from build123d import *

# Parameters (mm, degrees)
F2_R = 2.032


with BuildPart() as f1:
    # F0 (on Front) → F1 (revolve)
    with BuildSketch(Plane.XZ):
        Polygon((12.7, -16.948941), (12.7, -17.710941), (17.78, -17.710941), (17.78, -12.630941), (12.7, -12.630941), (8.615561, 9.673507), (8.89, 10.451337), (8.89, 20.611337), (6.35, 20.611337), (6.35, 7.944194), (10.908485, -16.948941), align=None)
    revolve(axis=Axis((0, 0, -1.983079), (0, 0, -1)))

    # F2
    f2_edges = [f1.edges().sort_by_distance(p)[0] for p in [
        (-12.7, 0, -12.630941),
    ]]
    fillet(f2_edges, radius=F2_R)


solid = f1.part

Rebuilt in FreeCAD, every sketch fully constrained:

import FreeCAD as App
import Part
import Sketcher
Q = App.Units.Quantity


def edges_at(feature, points):
    """Names of the edges that pass closest to the given points."""
    edges = feature.Shape.Edges
    near = lambda p: min(range(len(edges)), key=lambda i: edges[i].distToShape(Part.Vertex(*p))[0])
    return sorted({f"Edge{near(p) + 1}" for p in points})

doc = App.newDocument("Part")
body = doc.addObject("PartDesign::Body", "Body")

sketch1 = body.newObject("Sketcher::SketchObject", "Sketch")
sketch1.AttachmentSupport = (doc.getObject("XZ_Plane"), [""])
sketch1.MapMode = "FlatFace"
sketch1.addGeometry([
    Part.LineSegment(App.Vector(12.7, -16.948941, 0), App.Vector(12.7, -17.710941, 0)),
    Part.LineSegment(App.Vector(12.7, -17.710941, 0), App.Vector(17.78, -17.710941, 0)),
    Part.LineSegment(App.Vector(17.78, -17.710941, 0), App.Vector(17.78, -12.630941, 0)),
    Part.LineSegment(App.Vector(17.78, -12.630941, 0), App.Vector(12.7, -12.630941, 0)),
    Part.LineSegment(App.Vector(12.7, -12.630941, 0), App.Vector(8.615561, 9.673507, 0)),
    Part.LineSegment(App.Vector(8.615561, 9.673507, 0), App.Vector(8.89, 10.451337, 0)),
    Part.LineSegment(App.Vector(8.89, 10.451337, 0), App.Vector(8.89, 20.611337, 0)),
    Part.LineSegment(App.Vector(8.89, 20.611337, 0), App.Vector(6.35, 20.611337, 0)),
    Part.LineSegment(App.Vector(6.35, 20.611337, 0), App.Vector(6.35, 7.944194, 0)),
    Part.LineSegment(App.Vector(6.35, 7.944194, 0), App.Vector(10.908485, -16.948941, 0)),
    Part.LineSegment(App.Vector(10.908485, -16.948941, 0), App.Vector(12.7, -16.948941, 0)),
], False)
sketch1.addConstraint([
    Sketcher.Constraint("Coincident", 0, 2, 1, 1),
    Sketcher.Constraint("Coincident", 1, 2, 2, 1),
    Sketcher.Constraint("Coincident", 2, 2, 3, 1),
    Sketcher.Constraint("Coincident", 3, 2, 4, 1),
    Sketcher.Constraint("Coincident", 4, 2, 5, 1),
    Sketcher.Constraint("Coincident", 5, 2, 6, 1),
    Sketcher.Constraint("Coincident", 6, 2, 7, 1),
    Sketcher.Constraint("Coincident", 7, 2, 8, 1),
    Sketcher.Constraint("Coincident", 8, 2, 9, 1),
    Sketcher.Constraint("Coincident", 9, 2, 10, 1),
    Sketcher.Constraint("Coincident", 10, 2, 0, 1),
    Sketcher.Constraint("Vertical", 0),
    Sketcher.Constraint("Horizontal", 1),
    Sketcher.Constraint("Vertical", 2),
    Sketcher.Constraint("Horizontal", 3),
    Sketcher.Constraint("Vertical", 6),
    Sketcher.Constraint("Horizontal", 7),
    Sketcher.Constraint("Vertical", 8),
    Sketcher.Constraint("Horizontal", 10),
    Sketcher.Constraint("Parallel", 4, 9),
    Sketcher.Constraint("Vertical", 0, 2, 3, 2),
    Sketcher.Constraint("Equal", 3, 2),
    Sketcher.Constraint("DistanceX", 1, 1, 1, 2, Q("0.2 in")),
    Sketcher.Constraint("DistanceX", 7, 2, 7, 1, Q("0.1 in")),
    Sketcher.Constraint("DistanceY", 6, 1, 6, 2, Q("0.4 in")),
    Sketcher.Constraint("DistanceY", 0, 2, 0, 1, Q("0.03 in")),
    Sketcher.Constraint("DistanceX", -1, 1, 0, 2, Q("0.5 in")),
    Sketcher.Constraint("DistanceX", -1, 1, 5, 2, Q("0.35 in")),
    Sketcher.Constraint("Distance", 4, 22.67534),
    Sketcher.Constraint("DistanceX", 10, 1, 10, 2, 1.791515),
    Sketcher.Constraint("DistanceY", 8, 2, 8, 1, 12.667143),
    Sketcher.Constraint("DistanceY", 0, 2, -1, 1, 17.710941),
    Sketcher.Constraint("DistanceX", -1, 1, 4, 2, 8.615561),
])
revolution = body.newObject("PartDesign::Revolution", "Revolution")
revolution.Profile = sketch1
revolution.ReferenceAxis = (sketch1, ["V_Axis"])
revolution.Angle = 360
doc.recompute()

fillet = body.newObject("PartDesign::Fillet", "Fillet")
fillet.Base = (revolution, edges_at(revolution, [(-12.7, 0, -12.631)]))
fillet.Radius = Q("0.08 in")

doc.recompute()
